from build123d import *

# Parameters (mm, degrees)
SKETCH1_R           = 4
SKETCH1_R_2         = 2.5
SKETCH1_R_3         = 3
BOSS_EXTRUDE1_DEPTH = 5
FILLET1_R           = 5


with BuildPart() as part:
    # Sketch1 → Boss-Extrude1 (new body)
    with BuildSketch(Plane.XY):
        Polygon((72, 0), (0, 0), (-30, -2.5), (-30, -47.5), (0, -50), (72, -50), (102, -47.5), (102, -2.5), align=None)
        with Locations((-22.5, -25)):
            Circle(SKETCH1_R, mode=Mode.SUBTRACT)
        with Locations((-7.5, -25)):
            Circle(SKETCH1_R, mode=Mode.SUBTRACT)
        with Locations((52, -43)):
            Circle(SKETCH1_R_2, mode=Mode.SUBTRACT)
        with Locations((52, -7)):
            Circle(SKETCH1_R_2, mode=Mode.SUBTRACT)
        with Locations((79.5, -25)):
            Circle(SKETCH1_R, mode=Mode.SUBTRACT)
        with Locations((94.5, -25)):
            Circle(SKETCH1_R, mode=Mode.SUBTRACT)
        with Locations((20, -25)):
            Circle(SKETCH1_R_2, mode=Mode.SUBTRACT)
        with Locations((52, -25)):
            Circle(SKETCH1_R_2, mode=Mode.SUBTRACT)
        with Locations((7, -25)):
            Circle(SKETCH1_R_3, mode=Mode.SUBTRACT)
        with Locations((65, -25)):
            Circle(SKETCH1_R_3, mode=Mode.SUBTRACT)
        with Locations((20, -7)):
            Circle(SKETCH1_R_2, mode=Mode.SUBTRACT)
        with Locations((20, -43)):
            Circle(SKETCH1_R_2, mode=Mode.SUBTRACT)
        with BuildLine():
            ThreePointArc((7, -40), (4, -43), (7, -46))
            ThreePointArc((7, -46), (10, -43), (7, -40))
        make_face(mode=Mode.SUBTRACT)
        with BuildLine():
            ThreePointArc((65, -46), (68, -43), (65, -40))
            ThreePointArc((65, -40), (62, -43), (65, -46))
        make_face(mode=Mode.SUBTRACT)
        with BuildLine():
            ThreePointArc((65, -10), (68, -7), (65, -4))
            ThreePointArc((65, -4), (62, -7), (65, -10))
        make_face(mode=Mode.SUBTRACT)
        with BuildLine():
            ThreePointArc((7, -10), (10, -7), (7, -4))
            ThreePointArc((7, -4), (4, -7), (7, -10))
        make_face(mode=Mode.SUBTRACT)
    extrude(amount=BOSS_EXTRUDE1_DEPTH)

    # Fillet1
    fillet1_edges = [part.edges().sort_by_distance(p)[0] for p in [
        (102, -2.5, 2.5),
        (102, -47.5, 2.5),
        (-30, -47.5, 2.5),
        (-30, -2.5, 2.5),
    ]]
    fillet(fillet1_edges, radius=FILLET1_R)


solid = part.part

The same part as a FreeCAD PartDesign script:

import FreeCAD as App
import Part
import Sketcher
from FreeCAD import Vector


def edges_at(feature, points):
    """Names of the edges that pass closest to the given points."""
    edges = feature.Shape.Edges
    near = lambda p: min(range(len(edges)), key=lambda i: edges[i].distToShape(Part.Vertex(*p))[0])
    return sorted({f"Edge{near(p) + 1}" for p in points})

doc = App.newDocument("Part")
params = doc.addObject("Spreadsheet::Sheet", "Params")
for row, (alias, value) in enumerate([
    ("sketch1_diameter", "6 mm"),
    ("sketch1_diameter2", "5 mm"),
    ("sketch1_diameter3", "8 mm"),
    ("sketch1_width", "72 mm"),
    ("sketch1_height", "45 mm"),
    ("pad1_length", "5 mm"),
    ("fillet_radius", "5 mm"),
], start=1):
    params.set(f"A{row}", alias)
    params.set(f"B{row}", "=" + value)
    params.setAlias(f"B{row}", alias)

body = doc.addObject("PartDesign::Body", "Body")

# Sketch on XY plane
sketch1 = doc.addObject("Sketcher::SketchObject", "Sketch")
body.addObject(sketch1)
sketch1.AttachmentSupport = (doc.XY_Plane, [""])
sketch1.MapMode = "FlatFace"
sketch1.addGeometry(Part.LineSegment(Vector(72, 0, 0), Vector(0, 0, 0)), False)
sketch1.addGeometry(Part.LineSegment(Vector(0, 0, 0), Vector(-30, -2.5, 0)), False)
sketch1.addGeometry(Part.LineSegment(Vector(-30, -2.5, 0), Vector(-30, -47.5, 0)), False)
sketch1.addGeometry(Part.LineSegment(Vector(-30, -47.5, 0), Vector(0, -50, 0)), False)
sketch1.addGeometry(Part.LineSegment(Vector(0, -50, 0), Vector(72, -50, 0)), False)
sketch1.addGeometry(Part.LineSegment(Vector(72, -50, 0), Vector(102, -47.5, 0)), False)
sketch1.addGeometry(Part.LineSegment(Vector(102, -47.5, 0), Vector(102, -2.5, 0)), False)
sketch1.addGeometry(Part.LineSegment(Vector(102, -2.5, 0), Vector(72, 0, 0)), False)
sketch1.addGeometry(Part.Circle(Vector(7, -43, 0), Vector(0, 0, 1), 3), False)
sketch1.addGeometry(Part.Circle(Vector(20, -43, 0), Vector(0, 0, 1), 2.5), False)
sketch1.addGeometry(Part.Circle(Vector(52, -43, 0), Vector(0, 0, 1), 2.5), False)
sketch1.addGeometry(Part.Circle(Vector(65, -43, 0), Vector(0, 0, 1), 3), False)
sketch1.addGeometry(Part.Circle(Vector(-22.5, -25, 0), Vector(0, 0, 1), 4), False)
sketch1.addGeometry(Part.Circle(Vector(-7.5, -25, 0), Vector(0, 0, 1), 4), False)
sketch1.addGeometry(Part.Circle(Vector(7, -25, 0), Vector(0, 0, 1), 3), False)
sketch1.addGeometry(Part.Circle(Vector(20, -25, 0), Vector(0, 0, 1), 2.5), False)
sketch1.addGeometry(Part.Circle(Vector(7, -7, 0), Vector(0, 0, 1), 3), False)
sketch1.addGeometry(Part.Circle(Vector(20, -7, 0), Vector(0, 0, 1), 2.5), False)
sketch1.addGeometry(Part.Circle(Vector(52, -25, 0), Vector(0, 0, 1), 2.5), False)
sketch1.addGeometry(Part.Circle(Vector(65, -25, 0), Vector(0, 0, 1), 3), False)
sketch1.addGeometry(Part.Circle(Vector(79.5, -25, 0), Vector(0, 0, 1), 4), False)
sketch1.addGeometry(Part.Circle(Vector(94.5, -25, 0), Vector(0, 0, 1), 4), False)
sketch1.addGeometry(Part.Circle(Vector(52, -7, 0), Vector(0, 0, 1), 2.5), False)
sketch1.addGeometry(Part.Circle(Vector(65, -7, 0), Vector(0, 0, 1), 3), False)
sketch1.addConstraint(Sketcher.Constraint("Coincident", 0, 2, 1, 1))
sketch1.addConstraint(Sketcher.Constraint("Coincident", 1, 2, 2, 1))
sketch1.addConstraint(Sketcher.Constraint("Coincident", 2, 2, 3, 1))
sketch1.addConstraint(Sketcher.Constraint("Coincident", 3, 2, 4, 1))
sketch1.addConstraint(Sketcher.Constraint("Coincident", 4, 2, 5, 1))
sketch1.addConstraint(Sketcher.Constraint("Coincident", 5, 2, 6, 1))
sketch1.addConstraint(Sketcher.Constraint("Coincident", 6, 2, 7, 1))
sketch1.addConstraint(Sketcher.Constraint("Coincident", 7, 2, 0, 1))
sketch1.addConstraint(Sketcher.Constraint("Horizontal", 0))
sketch1.addConstraint(Sketcher.Constraint("Vertical", 2))
sketch1.addConstraint(Sketcher.Constraint("Horizontal", 4))
sketch1.addConstraint(Sketcher.Constraint("Vertical", 6))
sketch1.addConstraint(Sketcher.Constraint("Coincident", 0, 2, -1, 1))
sketch1.addConstraint(Sketcher.Constraint("Equal", 9, 10))
sketch1.addConstraint(Sketcher.Constraint("Equal", 8, 11))
sketch1.addConstraint(Sketcher.Constraint("Equal", 12, 13))
sketch1.addConstraint(Sketcher.Constraint("Equal", 11, 14))
sketch1.addConstraint(Sketcher.Constraint("Equal", 10, 15))
sketch1.addConstraint(Sketcher.Constraint("Equal", 14, 16))
sketch1.addConstraint(Sketcher.Constraint("Equal", 15, 17))
sketch1.addConstraint(Sketcher.Constraint("Equal", 17, 18))
sketch1.addConstraint(Sketcher.Constraint("Equal", 16, 19))
sketch1.addConstraint(Sketcher.Constraint("Equal", 13, 20))
sketch1.addConstraint(Sketcher.Constraint("Equal", 20, 21))
sketch1.addConstraint(Sketcher.Constraint("Equal", 18, 22))
sketch1.addConstraint(Sketcher.Constraint("Equal", 19, 23))
sketch1.addConstraint(Sketcher.Constraint("PointOnObject", 3, 2, -2))
sketch1.addConstraint(Sketcher.Constraint("Parallel", 1, 5))
sketch1.addConstraint(Sketcher.Constraint("Parallel", 3, 7))
sketch1.addConstraint(Sketcher.Constraint("Horizontal", 8, 3, 9, 3))
sketch1.addConstraint(Sketcher.Constraint("Horizontal", 9, 3, 10, 3))
sketch1.addConstraint(Sketcher.Constraint("Horizontal", 10, 3, 11, 3))
sketch1.addConstraint(Sketcher.Constraint("Horizontal", 12, 3, 13, 3))
sketch1.addConstraint(Sketcher.Constraint("Horizontal", 13, 3, 14, 3))
sketch1.addConstraint(Sketcher.Constraint("Horizontal", 14, 3, 15, 3))
sketch1.addConstraint(Sketcher.Constraint("Horizontal", 16, 3, 17, 3))
sketch1.addConstraint(Sketcher.Constraint("Horizontal", 15, 3, 18, 3))
sketch1.addConstraint(Sketcher.Constraint("Horizontal", 18, 3, 19, 3))
sketch1.addConstraint(Sketcher.Constraint("Horizontal", 19, 3, 20, 3))
sketch1.addConstraint(Sketcher.Constraint("Horizontal", 20, 3, 21, 3))
sketch1.addConstraint(Sketcher.Constraint("Horizontal", 17, 3, 22, 3))
sketch1.addConstraint(Sketcher.Constraint("Horizontal", 22, 3, 23, 3))
sketch1.addConstraint(Sketcher.Constraint("Horizontal", 2, 2, 5, 2))
sketch1.addConstraint(Sketcher.Constraint("Horizontal", 1, 2, 6, 2))
sketch1.addConstraint(Sketcher.Constraint("Vertical", 8, 3, 14, 3))
sketch1.addConstraint(Sketcher.Constraint("Vertical", 9, 3, 15, 3))
sketch1.addConstraint(Sketcher.Constraint("Vertical", 14, 3, 16, 3))
sketch1.addConstraint(Sketcher.Constraint("Vertical", 15, 3, 17, 3))
sketch1.addConstraint(Sketcher.Constraint("Vertical", 10, 3, 18, 3))
sketch1.addConstraint(Sketcher.Constraint("Vertical", 11, 3, 19, 3))
sketch1.addConstraint(Sketcher.Constraint("Vertical", 18, 3, 22, 3))
sketch1.addConstraint(Sketcher.Constraint("Vertical", 19, 3, 23, 3))
sketch1.addConstraint(Sketcher.Constraint("Vertical", 4, 2, 7, 2))
sketch1.addConstraint(Sketcher.Constraint("Diameter", 8, 6.0))
sketch1.addConstraint(Sketcher.Constraint("Diameter", 9, 5.0))
sketch1.addConstraint(Sketcher.Constraint("Diameter", 12, 8.0))
sketch1.addConstraint(Sketcher.Constraint("DistanceX", 0, 2, 0, 1, 72.0))
sketch1.addConstraint(Sketcher.Constraint("DistanceY", 2, 2, 2, 1, 45.0))
sketch1.addConstraint(Sketcher.Constraint("DistanceX", -1, 1, 8, 3, 7.0))
sketch1.addConstraint(Sketcher.Constraint("DistanceY", 8, 3, -1, 1, 43.0))
sketch1.addConstraint(Sketcher.Constraint("DistanceX", -1, 1, 9, 3, 20.0))
sketch1.addConstraint(Sketcher.Constraint("DistanceX", -1, 1, 10, 3, 52.0))
sketch1.addConstraint(Sketcher.Constraint("DistanceX", -1, 1, 11, 3, 65.0))
sketch1.addConstraint(Sketcher.Constraint("DistanceY", 12, 3, -1, 1, 25.0))
sketch1.addConstraint(Sketcher.Constraint("DistanceY", 16, 3, -1, 1, 7.0))
sketch1.addConstraint(Sketcher.Constraint("DistanceX", 1, 2, -1, 1, 30.0))
sketch1.addConstraint(Sketcher.Constraint("DistanceY", 3, 2, -1, 1, 50.0))
sketch1.addConstraint(Sketcher.Constraint("DistanceX", 12, 3, 13, 3, 15.0))
sketch1.addConstraint(Sketcher.Constraint("DistanceX", 20, 3, 21, 3, 15.0))
sketch1.addConstraint(Sketcher.Constraint("DistanceX", 12, 3, -1, 1, 22.5))
sketch1.addConstraint(Sketcher.Constraint("DistanceX", -1, 1, 20, 3, 79.5))
sketch1.setExpression("Constraints[53]", "Params.sketch1_diameter")
sketch1.setExpression("Constraints[54]", "Params.sketch1_diameter2")
sketch1.setExpression("Constraints[55]", "Params.sketch1_diameter3")
sketch1.setExpression("Constraints[56]", "Params.sketch1_width")
sketch1.setExpression("Constraints[57]", "Params.sketch1_height")
pad1 = doc.addObject("PartDesign::Pad", "Pad")
body.addObject(pad1)
pad1.Profile = sketch1
pad1.setExpression("Length", "Params.pad1_length")
doc.recompute()

fillet = doc.addObject("PartDesign::Fillet", "Fillet")
body.addObject(fillet)
fillet.Base = (pad1, edges_at(pad1, [
    (102, -2.5, 2.5),
    (102, -47.5, 2.5),
    (-30, -47.5, 2.5),
    (-30, -2.5, 2.5),
]))
fillet.setExpression("Radius", "Params.fillet_radius")

doc.recompute()
